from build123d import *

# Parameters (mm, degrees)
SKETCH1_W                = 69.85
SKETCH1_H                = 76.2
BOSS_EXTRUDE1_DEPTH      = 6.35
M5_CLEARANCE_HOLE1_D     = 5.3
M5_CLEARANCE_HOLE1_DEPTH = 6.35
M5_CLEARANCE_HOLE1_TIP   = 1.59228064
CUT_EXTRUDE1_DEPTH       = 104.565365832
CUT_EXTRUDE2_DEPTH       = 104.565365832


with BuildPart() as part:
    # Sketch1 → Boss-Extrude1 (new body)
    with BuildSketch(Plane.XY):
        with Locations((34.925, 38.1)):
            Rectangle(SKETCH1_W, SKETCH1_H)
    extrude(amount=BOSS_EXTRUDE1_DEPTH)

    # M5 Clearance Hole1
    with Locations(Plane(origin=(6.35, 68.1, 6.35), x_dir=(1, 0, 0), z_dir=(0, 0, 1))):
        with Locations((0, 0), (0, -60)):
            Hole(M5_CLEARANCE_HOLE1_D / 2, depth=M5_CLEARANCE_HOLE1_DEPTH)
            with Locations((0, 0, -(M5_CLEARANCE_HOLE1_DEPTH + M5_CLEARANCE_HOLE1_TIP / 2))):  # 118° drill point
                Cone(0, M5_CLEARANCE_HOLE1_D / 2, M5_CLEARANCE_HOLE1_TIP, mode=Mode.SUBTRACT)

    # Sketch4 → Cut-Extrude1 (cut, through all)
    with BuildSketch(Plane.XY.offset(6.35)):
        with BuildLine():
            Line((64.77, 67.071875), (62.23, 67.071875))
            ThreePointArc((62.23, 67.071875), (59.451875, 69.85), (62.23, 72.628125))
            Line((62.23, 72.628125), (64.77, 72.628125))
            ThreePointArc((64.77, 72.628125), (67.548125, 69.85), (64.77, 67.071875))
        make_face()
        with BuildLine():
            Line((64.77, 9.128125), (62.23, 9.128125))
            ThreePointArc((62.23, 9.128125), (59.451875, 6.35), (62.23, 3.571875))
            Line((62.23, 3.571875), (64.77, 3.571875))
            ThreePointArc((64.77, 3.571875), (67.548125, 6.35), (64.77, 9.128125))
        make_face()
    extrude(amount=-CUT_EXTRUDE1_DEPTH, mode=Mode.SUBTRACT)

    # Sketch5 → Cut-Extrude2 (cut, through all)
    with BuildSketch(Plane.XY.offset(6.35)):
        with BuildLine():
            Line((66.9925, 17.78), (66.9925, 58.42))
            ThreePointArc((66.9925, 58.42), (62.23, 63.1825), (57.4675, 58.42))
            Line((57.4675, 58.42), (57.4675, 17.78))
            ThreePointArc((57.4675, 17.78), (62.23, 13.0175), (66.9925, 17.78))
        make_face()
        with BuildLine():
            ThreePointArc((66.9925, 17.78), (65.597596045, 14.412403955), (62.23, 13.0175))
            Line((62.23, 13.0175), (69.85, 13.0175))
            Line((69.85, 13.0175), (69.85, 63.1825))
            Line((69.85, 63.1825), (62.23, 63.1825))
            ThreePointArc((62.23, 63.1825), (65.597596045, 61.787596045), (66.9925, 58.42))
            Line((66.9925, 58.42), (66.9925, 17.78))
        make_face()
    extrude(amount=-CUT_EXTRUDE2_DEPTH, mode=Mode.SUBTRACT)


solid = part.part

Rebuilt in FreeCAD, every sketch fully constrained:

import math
import FreeCAD as App
import Part
import Sketcher
Q = App.Units.Quantity

doc = App.newDocument("Part")
params = doc.addObject("Spreadsheet::Sheet", "Params")
for row, (alias, value) in enumerate([
    ("sketch1_height", "3 in"),
    ("sketch1_width", "2.75 in"),
    ("pad1_length", "0.25 in"),
    ("hole_diameter", "5.3 mm"),
    ("hole_depth", "0.25 in"),
    ("sketch3_width", "0.1 in"),
    ("sketch3_radius", "0.109375 in"),
    ("sketch4_width", "0.3 in"),
    ("sketch4_height", "1.6 in"),
    ("sketch4_radius", "0.1875 in"),
], start=1):
    params.set(f"A{row}", alias)
    params.set(f"B{row}", "=" + value)
    params.setAlias(f"B{row}", alias)

body = doc.addObject("PartDesign::Body", "Body")

# Sketch on XY plane
sketch1 = doc.addObject("Sketcher::SketchObject", "Sketch")
body.addObject(sketch1)
sketch1.AttachmentSupport = (doc.XY_Plane, [""])
sketch1.MapMode = "FlatFace"
sketch1.addGeometry([
    Part.LineSegment(App.Vector(0, 76.2, 0), App.Vector(0, 0, 0)),
    Part.LineSegment(App.Vector(0, 0, 0), App.Vector(69.85, 0, 0)),
    Part.LineSegment(App.Vector(69.85, 0, 0), App.Vector(69.85, 76.2, 0)),
    Part.LineSegment(App.Vector(69.85, 76.2, 0), App.Vector(0, 76.2, 0)),
], False)
sketch1.addConstraint([
    Sketcher.Constraint("Coincident", 0, 2, 1, 1),
    Sketcher.Constraint("Coincident", 1, 2, 2, 1),
    Sketcher.Constraint("Coincident", 2, 2, 3, 1),
    Sketcher.Constraint("Coincident", 3, 2, 0, 1),
    Sketcher.Constraint("Vertical", 0),
    Sketcher.Constraint("Horizontal", 1),
    Sketcher.Constraint("Vertical", 2),
    Sketcher.Constraint("Horizontal", 3),
    Sketcher.Constraint("Coincident", 0, 2, -1, 1),
    Sketcher.Constraint("DistanceY", 0, 2, 0, 1, Q("3 in")),
    Sketcher.Constraint("DistanceX", 1, 1, 1, 2, Q("2.75 in")),
])
sketch1.setExpression("Constraints[9]", "Params.sketch1_height")
sketch1.setExpression("Constraints[10]", "Params.sketch1_width")
pad1 = doc.addObject("PartDesign::Pad", "Pad")
body.addObject(pad1)
pad1.Profile = sketch1
pad1.setExpression("Length", "Params.pad1_length")

# Sketch on XY plane
sketch2 = doc.addObject("Sketcher::SketchObject", "Sketch001")
body.addObject(sketch2)
sketch2.AttachmentSupport = (doc.XY_Plane, [""])
sketch2.MapMode = "FlatFace"
sketch2.AttachmentOffset = App.Placement(App.Vector(0, 0, 0.25 * 25.4), App.Rotation())
sketch2.addGeometry([
    Part.Circle(App.Vector(6.35, 68.1, 0), App.Vector(0, 0, 1), 2.65),
    Part.Circle(App.Vector(6.35, 8.1, 0), App.Vector(0, 0, 1), 2.65),
], False)
sketch2.addConstraint([
    Sketcher.Constraint("Equal", 0, 1),
    Sketcher.Constraint("Vertical", 0, 3, 1, 3),
    Sketcher.Constraint("Diameter", 0, 5.3),
    Sketcher.Constraint("DistanceX", -1, 1, 0, 3, Q("0.25 in")),
    Sketcher.Constraint("DistanceY", -1, 1, 0, 3, 68.1),
    Sketcher.Constraint("DistanceY", -1, 1, 1, 3, 8.1),
])
doc.recompute()
hole = doc.addObject("PartDesign::Hole", "Hole")
body.addObject(hole)
hole.Profile = sketch2
hole.ThreadType = "None"
hole.setExpression("Diameter", "Params.hole_diameter")
hole.DepthType = "Dimension"
hole.setExpression("Depth", "Params.hole_depth")
hole.DrillPoint = "Angled"
hole.DrillPointAngle = 118

# Sketch on XY plane
sketch3 = doc.addObject("Sketcher::SketchObject", "Sketch002")
body.addObject(sketch3)
sketch3.AttachmentSupport = (doc.XY_Plane, [""])
sketch3.MapMode = "FlatFace"
sketch3.AttachmentOffset = App.Placement(App.Vector(0, 0, 0.25 * 25.4), App.Rotation())
sketch3.addGeometry([
    Part.LineSegment(App.Vector(62.23, 67.071875, 0), App.Vector(64.77, 67.071875, 0)),  # 0
    Part.ArcOfCircle(Part.Circle(App.Vector(64.77, 69.85, 0), App.Vector(0, 0, 1), 2.778125), math.radians(-90), math.radians(90)),  # 1
    Part.LineSegment(App.Vector(64.77, 72.628125, 0), App.Vector(62.23, 72.628125, 0)),  # 2
    Part.ArcOfCircle(Part.Circle(App.Vector(62.23, 69.85, 0), App.Vector(0, 0, 1), 2.778125), math.radians(90), math.radians(270)),  # 3
    Part.LineSegment(App.Vector(64.77, 9.128125, 0), App.Vector(62.23, 9.128125, 0)),  # 4
    Part.ArcOfCircle(Part.Circle(App.Vector(62.23, 6.35, 0), App.Vector(0, 0, 1), 2.778125), math.radians(90), math.radians(270)),  # 5
    Part.LineSegment(App.Vector(62.23, 3.571875, 0), App.Vector(64.77, 3.571875, 0)),  # 6
    Part.ArcOfCircle(Part.Circle(App.Vector(64.77, 6.35, 0), App.Vector(0, 0, 1), 2.778125), math.radians(-90), math.radians(90)),  # 7
], False)
sketch3.addConstraint([
    Sketcher.Constraint("Tangent", 0, 2, 1, 1),
    Sketcher.Constraint("Tangent", 1, 2, 2, 1),
    Sketcher.Constraint("Tangent", 2, 2, 3, 1),
    Sketcher.Constraint("Tangent", 3, 2, 0, 1),
    Sketcher.Constraint("Tangent", 4, 2, 5, 1),
    Sketcher.Constraint("Tangent", 5, 2, 6, 1),
    Sketcher.Constraint("Tangent", 6, 2, 7, 1),
    Sketcher.Constraint("Tangent", 7, 2, 4, 1),
    Sketcher.Constraint("Horizontal", 0),
    Sketcher.Constraint("Horizontal", 2),
    Sketcher.Constraint("Horizontal", 4),
    Sketcher.Constraint("Horizontal", 6),
    Sketcher.Constraint("Equal", 3, 5),
    Sketcher.Constraint("Vertical", 3, 3, 5, 3),
    Sketcher.Constraint("Vertical", 1, 3, 7, 3),
    Sketcher.Constraint("DistanceX", 0, 1, 0, 2, Q("0.1 in")),
    Sketcher.Constraint("Radius", 1, Q("0.109375 in")),
    Sketcher.Constraint("DistanceY", 5, 3, 3, 3, Q("2.5 in")),
    Sketcher.Constraint("DistanceX", -1, 1, 1, 3, Q("2.55 in")),
    Sketcher.Constraint("DistanceY", -1, 1, 1, 3, Q("2.75 in")),
])
sketch3.setExpression("Constraints[15]", "Params.sketch3_width")
sketch3.setExpression("Constraints[16]", "Params.sketch3_radius")
pocket1 = doc.addObject("PartDesign::Pocket", "Pocket")
body.addObject(pocket1)
pocket1.Profile = sketch3
pocket1.Type = "ThroughAll"

# Sketch on XY plane
sketch4 = doc.addObject("Sketcher::SketchObject", "Sketch003")
body.addObject(sketch4)
sketch4.AttachmentSupport = (doc.XY_Plane, [""])
sketch4.MapMode = "FlatFace"
sketch4.AttachmentOffset = App.Placement(App.Vector(0, 0, 0.25 * 25.4), App.Rotation())
sketch4.addGeometry([
    Part.ArcOfCircle(Part.Circle(App.Vector(62.23, 58.42, 0), App.Vector(0, 0, 1), 4.7625), math.radians(90), math.radians(180)),  # 0
    Part.LineSegment(App.Vector(57.4675, 58.42, 0), App.Vector(57.4675, 17.78, 0)),  # 1
    Part.ArcOfCircle(Part.Circle(App.Vector(62.23, 17.78, 0), App.Vector(0, 0, 1), 4.7625), math.radians(180), math.radians(270)),  # 2
    Part.LineSegment(App.Vector(62.23, 13.0175, 0), App.Vector(69.85, 13.0175, 0)),  # 3
    Part.LineSegment(App.Vector(69.85, 13.0175, 0), App.Vector(69.85, 63.1825, 0)),  # 4
    Part.LineSegment(App.Vector(69.85, 63.1825, 0), App.Vector(62.23, 63.1825, 0)),  # 5
], False)
sketch4.addConstraint([
    Sketcher.Constraint("Tangent", 0, 2, 1, 1),
    Sketcher.Constraint("Tangent", 1, 2, 2, 1),
    Sketcher.Constraint("Tangent", 2, 2, 3, 1),
    Sketcher.Constraint("Coincident", 3, 2, 4, 1),
    Sketcher.Constraint("Coincident", 4, 2, 5, 1),
    Sketcher.Constraint("Tangent", 5, 2, 0, 1),
    Sketcher.Constraint("Vertical", 1),
    Sketcher.Constraint("Horizontal", 3),
    Sketcher.Constraint("Vertical", 4),
    Sketcher.Constraint("Horizontal", 5),
    Sketcher.Constraint("Equal", 0, 2),
    Sketcher.Constraint("DistanceX", 3, 1, 3, 2, Q("0.3 in")),
    Sketcher.Constraint("DistanceY", 1, 2, 1, 1, Q("1.6 in")),
    Sketcher.Constraint("Radius", 0, Q("0.1875 in")),
    Sketcher.Constraint("DistanceY", -1, 1, 0, 3, Q("2.3 in")),
    Sketcher.Constraint("DistanceX", -1, 1, 0, 3, Q("2.45 in")),
])
sketch4.setExpression("Constraints[11]", "Params.sketch4_width")
sketch4.setExpression("Constraints[12]", "Params.sketch4_height")
sketch4.setExpression("Constraints[13]", "Params.sketch4_radius")
pocket2 = doc.addObject("PartDesign::Pocket", "Pocket001")
body.addObject(pocket2)
pocket2.Profile = sketch4
pocket2.Type = "ThroughAll"

doc.recompute()
